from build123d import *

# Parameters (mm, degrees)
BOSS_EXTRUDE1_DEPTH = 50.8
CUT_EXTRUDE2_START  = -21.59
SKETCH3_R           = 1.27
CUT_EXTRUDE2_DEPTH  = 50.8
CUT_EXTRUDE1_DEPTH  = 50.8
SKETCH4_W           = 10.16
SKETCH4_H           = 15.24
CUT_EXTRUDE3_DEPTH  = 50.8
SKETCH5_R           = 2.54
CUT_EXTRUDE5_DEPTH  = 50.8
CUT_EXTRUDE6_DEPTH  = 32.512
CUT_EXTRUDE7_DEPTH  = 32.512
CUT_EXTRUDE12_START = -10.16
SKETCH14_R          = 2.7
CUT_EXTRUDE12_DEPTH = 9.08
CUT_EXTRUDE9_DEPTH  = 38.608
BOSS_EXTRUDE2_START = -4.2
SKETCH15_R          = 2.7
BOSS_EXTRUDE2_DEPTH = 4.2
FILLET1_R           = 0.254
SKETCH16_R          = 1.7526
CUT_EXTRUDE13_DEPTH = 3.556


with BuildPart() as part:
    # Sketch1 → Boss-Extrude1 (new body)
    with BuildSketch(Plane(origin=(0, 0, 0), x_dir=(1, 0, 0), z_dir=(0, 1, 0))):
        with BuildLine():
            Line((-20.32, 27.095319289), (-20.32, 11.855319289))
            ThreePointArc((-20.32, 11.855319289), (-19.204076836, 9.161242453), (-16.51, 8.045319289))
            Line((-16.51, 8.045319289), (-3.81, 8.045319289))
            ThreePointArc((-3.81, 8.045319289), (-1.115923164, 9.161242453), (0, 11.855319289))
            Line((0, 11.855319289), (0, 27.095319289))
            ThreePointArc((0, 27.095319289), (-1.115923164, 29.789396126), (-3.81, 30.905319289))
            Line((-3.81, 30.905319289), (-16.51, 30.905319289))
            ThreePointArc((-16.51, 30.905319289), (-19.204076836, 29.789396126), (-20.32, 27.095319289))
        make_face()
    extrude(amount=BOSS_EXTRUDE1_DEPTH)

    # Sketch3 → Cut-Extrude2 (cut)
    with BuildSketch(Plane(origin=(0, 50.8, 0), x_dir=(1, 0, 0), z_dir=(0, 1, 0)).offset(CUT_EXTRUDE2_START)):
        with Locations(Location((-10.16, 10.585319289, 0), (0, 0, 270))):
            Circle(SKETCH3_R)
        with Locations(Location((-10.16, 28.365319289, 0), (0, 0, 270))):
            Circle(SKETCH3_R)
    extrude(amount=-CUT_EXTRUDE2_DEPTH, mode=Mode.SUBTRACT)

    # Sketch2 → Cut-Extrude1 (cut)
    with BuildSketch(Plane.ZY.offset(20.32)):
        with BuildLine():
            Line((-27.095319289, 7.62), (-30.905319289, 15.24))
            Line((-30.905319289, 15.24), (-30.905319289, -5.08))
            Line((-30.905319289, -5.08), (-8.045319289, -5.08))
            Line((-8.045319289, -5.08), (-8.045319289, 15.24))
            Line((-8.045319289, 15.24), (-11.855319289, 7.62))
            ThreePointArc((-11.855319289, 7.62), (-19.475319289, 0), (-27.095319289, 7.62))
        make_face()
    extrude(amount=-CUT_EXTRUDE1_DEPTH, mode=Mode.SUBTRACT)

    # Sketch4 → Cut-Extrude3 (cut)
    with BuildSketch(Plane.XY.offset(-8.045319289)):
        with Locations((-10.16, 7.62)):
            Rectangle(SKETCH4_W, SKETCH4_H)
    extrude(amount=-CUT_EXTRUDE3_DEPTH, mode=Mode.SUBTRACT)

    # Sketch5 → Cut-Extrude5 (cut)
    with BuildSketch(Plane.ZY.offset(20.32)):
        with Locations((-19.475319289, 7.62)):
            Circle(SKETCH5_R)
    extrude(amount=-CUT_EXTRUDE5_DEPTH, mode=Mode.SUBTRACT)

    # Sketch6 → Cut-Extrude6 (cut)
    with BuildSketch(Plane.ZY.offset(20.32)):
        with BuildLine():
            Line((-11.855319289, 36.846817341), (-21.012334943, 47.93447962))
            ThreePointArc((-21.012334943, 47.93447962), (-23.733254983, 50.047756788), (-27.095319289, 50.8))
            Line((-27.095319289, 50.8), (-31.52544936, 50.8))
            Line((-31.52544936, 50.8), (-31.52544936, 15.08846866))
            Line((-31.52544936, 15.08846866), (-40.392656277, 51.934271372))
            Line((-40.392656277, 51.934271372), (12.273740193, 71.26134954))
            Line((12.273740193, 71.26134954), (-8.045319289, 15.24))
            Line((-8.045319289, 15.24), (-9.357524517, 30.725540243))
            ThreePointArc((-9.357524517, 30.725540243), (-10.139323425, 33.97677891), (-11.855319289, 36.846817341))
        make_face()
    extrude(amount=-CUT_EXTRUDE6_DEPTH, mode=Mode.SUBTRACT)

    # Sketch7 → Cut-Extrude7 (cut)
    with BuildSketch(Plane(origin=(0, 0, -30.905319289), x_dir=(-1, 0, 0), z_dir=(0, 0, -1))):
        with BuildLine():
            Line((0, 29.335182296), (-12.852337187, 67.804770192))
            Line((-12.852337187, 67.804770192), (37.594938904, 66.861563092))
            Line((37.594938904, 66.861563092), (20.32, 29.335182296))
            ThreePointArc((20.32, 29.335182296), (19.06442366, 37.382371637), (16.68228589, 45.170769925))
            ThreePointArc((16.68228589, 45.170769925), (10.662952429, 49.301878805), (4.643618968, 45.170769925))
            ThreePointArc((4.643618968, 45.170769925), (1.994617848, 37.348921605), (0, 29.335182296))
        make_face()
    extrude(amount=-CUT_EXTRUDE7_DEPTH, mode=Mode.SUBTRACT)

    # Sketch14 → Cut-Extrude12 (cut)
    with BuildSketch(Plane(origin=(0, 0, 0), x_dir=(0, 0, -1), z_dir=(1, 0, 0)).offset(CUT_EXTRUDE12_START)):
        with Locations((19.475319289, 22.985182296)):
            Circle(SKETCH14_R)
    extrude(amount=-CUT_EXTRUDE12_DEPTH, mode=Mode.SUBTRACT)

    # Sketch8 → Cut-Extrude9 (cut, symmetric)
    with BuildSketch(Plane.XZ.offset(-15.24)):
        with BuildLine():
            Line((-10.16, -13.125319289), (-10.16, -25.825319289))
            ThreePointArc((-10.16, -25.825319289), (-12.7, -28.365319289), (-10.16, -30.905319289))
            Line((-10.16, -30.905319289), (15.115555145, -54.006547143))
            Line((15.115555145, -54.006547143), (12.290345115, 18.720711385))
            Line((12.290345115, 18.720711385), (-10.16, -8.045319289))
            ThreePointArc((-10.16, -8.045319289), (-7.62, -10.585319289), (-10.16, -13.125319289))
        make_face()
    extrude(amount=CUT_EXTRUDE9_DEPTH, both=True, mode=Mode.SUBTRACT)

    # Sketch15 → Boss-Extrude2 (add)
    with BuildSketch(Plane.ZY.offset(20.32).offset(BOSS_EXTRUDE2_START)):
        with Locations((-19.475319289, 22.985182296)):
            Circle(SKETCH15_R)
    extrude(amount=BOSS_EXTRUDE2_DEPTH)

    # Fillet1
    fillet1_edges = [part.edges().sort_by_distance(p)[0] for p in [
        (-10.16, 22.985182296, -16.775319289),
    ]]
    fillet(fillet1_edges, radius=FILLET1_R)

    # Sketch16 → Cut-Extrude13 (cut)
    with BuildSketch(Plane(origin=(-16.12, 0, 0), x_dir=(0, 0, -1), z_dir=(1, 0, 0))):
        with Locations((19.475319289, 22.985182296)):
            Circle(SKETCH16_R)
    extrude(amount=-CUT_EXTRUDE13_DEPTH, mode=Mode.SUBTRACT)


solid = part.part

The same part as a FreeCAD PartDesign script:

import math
import FreeCAD as App
import Part
import Sketcher
Q = App.Units.Quantity


def edges_at(feature, points):
    """Names of the edges that pass closest to the given points."""
    edges = feature.Shape.Edges
    near = lambda p: min(range(len(edges)), key=lambda i: edges[i].distToShape(Part.Vertex(*p))[0])
    return sorted({f"Edge{near(p) + 1}" for p in points})


def add_polygon(sketch, points):
    """Adds a closed chain of lines whose ends are joined by coincident constraints."""
    first, n = sketch.GeometryCount, len(points)
    for a, b in zip(points, points[1:] + points[:1]):
        sketch.addGeometry(Part.LineSegment(App.Vector(*a, 0), App.Vector(*b, 0)), False)
    for i in range(n):
        sketch.addConstraint(Sketcher.Constraint("Coincident", first + i, 2, first + (i + 1) % n, 1))

doc = App.newDocument("Part")
body = doc.addObject("PartDesign::Body", "Body")

# Sketch on XZ plane
sketch1 = body.newObject("Sketcher::SketchObject", "Sketch")
sketch1.AttachmentSupport = (doc.getObject("XZ_Plane"), [""])
sketch1.MapMode = "FlatFace"
sketch1.addGeometry([
    Part.LineSegment(App.Vector(-20.3, -27.1, 0), App.Vector(-20.3, -11.9, 0)),  # 0
    Part.ArcOfCircle(Part.Circle(App.Vector(-16.5, -11.9, 0), App.Vector(0, 0, 1), 3.8), math.radians(90), math.radians(180)),  # 1
    Part.LineSegment(App.Vector(-16.5, -8, 0), App.Vector(-3.8, -8, 0)),  # 2
    Part.ArcOfCircle(Part.Circle(App.Vector(-3.8, -11.9, 0), App.Vector(0, 0, 1), 3.8), math.radians(0), math.radians(90)),  # 3
    Part.LineSegment(App.Vector(0, -11.9, 0), App.Vector(0, -27.1, 0)),  # 4
    Part.ArcOfCircle(Part.Circle(App.Vector(-3.8, -27.1, 0), App.Vector(0, 0, 1), 3.8), math.radians(-90), math.radians(0)),  # 5
    Part.LineSegment(App.Vector(-3.8, -30.9, 0), App.Vector(-16.5, -30.9, 0)),  # 6
    Part.ArcOfCircle(Part.Circle(App.Vector(-16.5, -27.1, 0), App.Vector(0, 0, 1), 3.8), math.radians(180), math.radians(270)),  # 7
], False)
sketch1.addConstraint([
    Sketcher.Constraint("Tangent", 0, 2, 1, 2),
    Sketcher.Constraint("Tangent", 1, 1, 2, 1),
    Sketcher.Constraint("Tangent", 2, 2, 3, 2),
    Sketcher.Constraint("Tangent", 3, 1, 4, 1),
    Sketcher.Constraint("Tangent", 4, 2, 5, 2),
    Sketcher.Constraint("Tangent", 5, 1, 6, 1),
    Sketcher.Constraint("Tangent", 6, 2, 7, 2),
    Sketcher.Constraint("Tangent", 7, 1, 0, 1),
    Sketcher.Constraint("Vertical", 0),
    Sketcher.Constraint("Horizontal", 2),
    Sketcher.Constraint("Vertical", 4),
    Sketcher.Constraint("Horizontal", 6),
    Sketcher.Constraint("Equal", 1, 3),
    Sketcher.Constraint("Equal", 3, 5),
    Sketcher.Constraint("Equal", 5, 7),
    Sketcher.Constraint("PointOnObject", 3, 1, -2),
    Sketcher.Constraint("Radius", 1, Q("0.15 in")),
    Sketcher.Constraint("DistanceX", 2, 1, 2, 2, Q("0.5 in")),
    Sketcher.Constraint("DistanceY", 0, 1, 0, 2, Q("0.6 in")),
    Sketcher.Constraint("DistanceY", 1, 3, -1, 1, 11.855319),
])
pad1 = body.newObject("PartDesign::Pad", "Pad")
pad1.Profile = sketch1
pad1.Length = Q("2 in")
pad1.Reversed = True

# Sketch on XZ plane
sketch2 = body.newObject("Sketcher::SketchObject", "Sketch001")
sketch2.AttachmentSupport = (doc.getObject("XZ_Plane"), [""])
sketch2.MapMode = "FlatFace"
sketch2.AttachmentOffset = App.Placement(App.Vector(0, 0, -1.15 * 25.4), App.Rotation())
sketch2.addGeometry([
    Part.Circle(App.Vector(-10.2, -10.6, 0), App.Vector(0, 0, 1), 1.3),
    Part.Circle(App.Vector(-10.2, -28.4, 0), App.Vector(0, 0, 1), 1.3),
], False)
sketch2.addConstraint([
    Sketcher.Constraint("Equal", 0, 1),
    Sketcher.Constraint("Vertical", 0, 3, 1, 3),
    Sketcher.Constraint("Diameter", 0, Q("0.1 in")),
    Sketcher.Constraint("DistanceX", 0, 3, -1, 1, Q("0.4 in")),
    Sketcher.Constraint("DistanceY", 1, 3, 0, 3, Q("0.7 in")),
    Sketcher.Constraint("DistanceY", 0, 3, -1, 1, 10.585319),
])
pocket1 = body.newObject("PartDesign::Pocket", "Pocket")
pocket1.Profile = sketch2
pocket1.Length = Q("2 in")
pocket1.Reversed = True

# Sketch on YZ plane
sketch3 = body.newObject("Sketcher::SketchObject", "Sketch002")
sketch3.AttachmentSupport = (doc.getObject("YZ_Plane"), [""])
sketch3.MapMode = "FlatFace"
sketch3.AttachmentOffset = App.Placement(App.Vector(0, 0, -0.8 * 25.4), App.Rotation())
sketch3.addGeometry([
    Part.LineSegment(App.Vector(8, -27, 0), App.Vector(15, -31, 0)),  # 0
    Part.LineSegment(App.Vector(15, -31, 0), App.Vector(-5, -31, 0)),  # 1
    Part.LineSegment(App.Vector(-5, -31, 0), App.Vector(-5, -8, 0)),  # 2
    Part.LineSegment(App.Vector(-5, -8, 0), App.Vector(15, -8, 0)),  # 3
    Part.LineSegment(App.Vector(15, -8, 0), App.Vector(8, -12, 0)),  # 4
    Part.ArcOfCircle(Part.Circle(App.Vector(8, -19, 0), App.Vector(0, 0, 1), 8), math.radians(90), math.radians(270)),  # 5
], False)
sketch3.addConstraint([
    Sketcher.Constraint("Coincident", 0, 2, 1, 1),
    Sketcher.Constraint("Coincident", 1, 2, 2, 1),
    Sketcher.Constraint("Coincident", 2, 2, 3, 1),
    Sketcher.Constraint("Coincident", 3, 2, 4, 1),
    Sketcher.Constraint("Coincident", 4, 2, 5, 1),
    Sketcher.Constraint("Coincident", 5, 2, 0, 1),
    Sketcher.Constraint("Horizontal", 1),
    Sketcher.Constraint("Vertical", 2),
    Sketcher.Constraint("Horizontal", 3),
    Sketcher.Constraint("Vertical", 0, 2, 3, 2),
    Sketcher.Constraint("Vertical", 5, 3, 4, 2),
    Sketcher.Constraint("Vertical", 4, 2, 5, 2),
    Sketcher.Constraint("Equal", 0, 4),
    Sketcher.Constraint("Radius", 5, Q("0.3 in")),
    Sketcher.Constraint("DistanceX", 1, 2, 1, 1, Q("0.8 in")),
    Sketcher.Constraint("DistanceY", 2, 1, 2, 2, Q("0.9 in")),
    Sketcher.Constraint("DistanceX", -1, 1, 5, 3, Q("0.3 in")),
    Sketcher.Constraint("DistanceX", -1, 1, 0, 2, Q("0.6 in")),
    Sketcher.Constraint("DistanceY", 5, 3, -1, 1, 19.475319),
])
pocket2 = body.newObject("PartDesign::Pocket", "Pocket001")
pocket2.Profile = sketch3
pocket2.Length = Q("2 in")
pocket2.Reversed = True

# Sketch on XY plane
sketch4 = body.newObject("Sketcher::SketchObject", "Sketch003")
sketch4.AttachmentSupport = (doc.getObject("XY_Plane"), [""])
sketch4.MapMode = "FlatFace"
sketch4.AttachmentOffset = App.Placement(App.Vector(0, 0, -8.045319), App.Rotation())
add_polygon(sketch4, [(-15, 15), (-15, 0), (-5, 0), (-5, 15)])  # lines 0-3
sketch4.addConstraint([
    Sketcher.Constraint("Vertical", 0),
    Sketcher.Constraint("Horizontal", 1),
    Sketcher.Constraint("Vertical", 2),
    Sketcher.Constraint("Horizontal", 3),
    Sketcher.Constraint("PointOnObject", 0, 2, -1),
    Sketcher.Constraint("DistanceX", 1, 1, 1, 2, Q("0.4 in")),
    Sketcher.Constraint("DistanceY", 0, 2, 0, 1, Q("0.6 in")),
    Sketcher.Constraint("DistanceX", 0, 2, -1, 1, Q("0.6 in")),
])
pocket3 = body.newObject("PartDesign::Pocket", "Pocket002")
pocket3.Profile = sketch4
pocket3.Length = Q("2 in")

# Sketch on YZ plane
sketch5 = body.newObject("Sketcher::SketchObject", "Sketch004")
sketch5.AttachmentSupport = (doc.getObject("YZ_Plane"), [""])
sketch5.MapMode = "FlatFace"
sketch5.AttachmentOffset = App.Placement(App.Vector(0, 0, -0.8 * 25.4), App.Rotation())
sketch5.addGeometry(Part.Circle(App.Vector(7.6, -19.5, 0), App.Vector(0, 0, 1), 2.5), False)
sketch5.addConstraint([
    Sketcher.Constraint("Diameter", 0, Q("0.2 in")),
    Sketcher.Constraint("DistanceX", -1, 1, 0, 3, Q("0.3 in")),
    Sketcher.Constraint("DistanceY", 0, 3, -1, 1, 19.475319),
])
pocket4 = body.newObject("PartDesign::Pocket", "Pocket003")
pocket4.Profile = sketch5
pocket4.Length = Q("2 in")
pocket4.Reversed = True

# Sketch on YZ plane
sketch6 = body.newObject("Sketcher::SketchObject", "Sketch005")
sketch6.AttachmentSupport = (doc.getObject("YZ_Plane"), [""])
sketch6.MapMode = "FlatFace"
sketch6.AttachmentOffset = App.Placement(App.Vector(0, 0, -0.8 * 25.4), App.Rotation())
sketch6.addGeometry([
    Part.LineSegment(App.Vector(47.9, -21, 0), App.Vector(36.8, -11.9, 0)),  # 0
    Part.ArcOfCircle(Part.Circle(App.Vector(29.8, -20.4, 0), App.Vector(0, 0, 1), 11.1), math.radians(50), math.radians(85)),  # 1
    Part.LineSegment(App.Vector(30.7, -9.4, 0), App.Vector(15.2, -8, 0)),  # 2
    Part.LineSegment(App.Vector(15.2, -8, 0), App.Vector(71.3, 12.3, 0)),  # 3
    Part.LineSegment(App.Vector(71.3, 12.3, 0), App.Vector(51.9, -40.4, 0)),  # 4
    Part.LineSegment(App.Vector(51.9, -40.4, 0), App.Vector(15.1, -31.5, 0)),  # 5
    Part.LineSegment(App.Vector(15.1, -31.5, 0), App.Vector(50.8, -31.5, 0)),  # 6
    Part.LineSegment(App.Vector(50.8, -31.5, 0), App.Vector(50.8, -27.1, 0)),  # 7
    Part.ArcOfCircle(Part.Circle(App.Vector(42.9, -27.1, 0), App.Vector(0, 0, 1), 7.9), math.radians(0), math.radians(50)),  # 8
], False)
sketch6.addConstraint([
    Sketcher.Constraint("Tangent", 0, 2, 1, 1),
    Sketcher.Constraint("Tangent", 1, 2, 2, 1),
    Sketcher.Constraint("Coincident", 2, 2, 3, 1),
    Sketcher.Constraint("Coincident", 3, 2, 4, 1),
    Sketcher.Constraint("Coincident", 4, 2, 5, 1),
    Sketcher.Constraint("Coincident", 5, 2, 6, 1),
    Sketcher.Constraint("Coincident", 6, 2, 7, 1),
    Sketcher.Constraint("Tangent", 7, 2, 8, 1),
    Sketcher.Constraint("Tangent", 8, 2, 0, 1),
    Sketcher.Constraint("Horizontal", 6),
    Sketcher.Constraint("Vertical", 7),
    Sketcher.Constraint("DistanceX", -1, 1, 6, 2, Q("2 in")),
    Sketcher.Constraint("DistanceX", -1, 1, 2, 2, Q("0.6 in")),
    Sketcher.Constraint("DistanceY", 8, 3, 0, 2, Q("0.6 in")),
    Sketcher.Constraint("Radius", 8, 7.889301),
    Sketcher.Constraint("DistanceY", 0, 2, 2, 2, Q("0.15 in")),
    Sketcher.Constraint("Radius", 1, 11.082261),
    Sketcher.Constraint("DistanceX", 6, 1, 6, 2, 35.711531),
    Sketcher.Constraint("DistanceY", 7, 1, 7, 2, 4.43013),
    Sketcher.Constraint("Distance", 4, 56.100671),
    Sketcher.Constraint("DistanceX", -1, 1, 1, 3, 29.789811),
    Sketcher.Constraint("DistanceY", 1, 3, -1, 1, 20.40021),
    Sketcher.Constraint("DistanceX", -1, 1, 3, 2, 71.26135),
    Sketcher.Constraint("DistanceY", -1, 1, 3, 2, 12.27374),
    Sketcher.Constraint("DistanceX", -1, 1, 4, 2, 51.934271),
])
pocket5 = body.newObject("PartDesign::Pocket", "Pocket004")
pocket5.Profile = sketch6
pocket5.Length = Q("1.28 in")
pocket5.Reversed = True

# Sketch on XY plane
sketch7 = body.newObject("Sketcher::SketchObject", "Sketch006")
sketch7.AttachmentSupport = (doc.getObject("XY_Plane"), [""])
sketch7.MapMode = "FlatFace"
sketch7.AttachmentOffset = App.Placement(App.Vector(0, 0, -30.905319), App.Rotation())
sketch7.addGeometry([
    Part.LineSegment(App.Vector(13, 68, 0), App.Vector(0, 29, 0)),  # 0
    Part.ArcOfCircle(Part.Circle(App.Vector(-98, 9, 0), App.Vector(0, 0, 1), 100), math.radians(11.61), math.radians(21.08)),  # 1
    Part.ArcOfCircle(Part.Circle(App.Vector(-11, 43, 0), App.Vector(0, 0, 1), 6), math.radians(21), math.radians(159)),  # 2
    Part.ArcOfCircle(Part.Circle(App.Vector(37, 25, 0), App.Vector(0, 0, 1), 57), math.radians(158.92), math.radians(175.2)),  # 3
    Part.LineSegment(App.Vector(-20, 29, 0), App.Vector(-38, 67, 0)),  # 4
    Part.LineSegment(App.Vector(-38, 67, 0), App.Vector(13, 68, 0)),  # 5
], False)
sketch7.addConstraint([
    Sketcher.Constraint("Coincident", 0, 2, 1, 1),
    Sketcher.Constraint("Tangent", 1, 2, 2, 1),
    Sketcher.Constraint("Tangent", 2, 2, 3, 1),
    Sketcher.Constraint("Coincident", 3, 2, 4, 1),
    Sketcher.Constraint("Coincident", 4, 2, 5, 1),
    Sketcher.Constraint("Coincident", 5, 2, 0, 1),
    Sketcher.Constraint("PointOnObject", 0, 2, -2),
    Sketcher.Constraint("Horizontal", 0, 2, 3, 2),
    Sketcher.Constraint("DistanceX", 3, 2, -1, 1, Q("0.8 in")),
    Sketcher.Constraint("Radius", 1, 100.006899),
    Sketcher.Constraint("Radius", 2, 6.450863),
    Sketcher.Constraint("Radius", 3, 57.386896),
    Sketcher.Constraint("DistanceY", 1, 2, 5, 2, 22.634),
    Sketcher.Constraint("DistanceY", 2, 2, 5, 2, 22.634),
    Sketcher.Constraint("Distance", 0, 40.559731),
    Sketcher.Constraint("DistanceX", 1, 3, -1, 1, 97.960569),
    Sketcher.Constraint("DistanceY", -1, 1, 1, 3, 9.207919),
    Sketcher.Constraint("DistanceX", 4, 2, -1, 1, 37.594939),
    Sketcher.Constraint("DistanceY", 3, 2, 4, 2, 37.526381),
])
pocket6 = body.newObject("PartDesign::Pocket", "Pocket005")
pocket6.Profile = sketch7
pocket6.Length = Q("1.28 in")
pocket6.Reversed = True

# Sketch on YZ plane
sketch8 = body.newObject("Sketcher::SketchObject", "Sketch007")
sketch8.AttachmentSupport = (doc.getObject("YZ_Plane"), [""])
sketch8.MapMode = "FlatFace"
sketch8.AttachmentOffset = App.Placement(App.Vector(0, 0, -0.4 * 25.4), App.Rotation())
sketch8.addGeometry(Part.Circle(App.Vector(23, -19.5, 0), App.Vector(0, 0, 1), 2.7), False)
sketch8.addConstraint([
    Sketcher.Constraint("Diameter", 0, 5.4),
    Sketcher.Constraint("DistanceY", 0, 3, -1, 1, 19.475319),
    Sketcher.Constraint("DistanceX", -1, 1, 0, 3, 22.985182),
])
pocket7 = body.newObject("PartDesign::Pocket", "Pocket006")
pocket7.Profile = sketch8
pocket7.Length = 9.08

# Sketch on XZ plane
sketch9 = body.newObject("Sketcher::SketchObject", "Sketch008")
sketch9.AttachmentSupport = (doc.getObject("XZ_Plane"), [""])
sketch9.MapMode = "FlatFace"
sketch9.AttachmentOffset = App.Placement(App.Vector(0, 0, -0.6 * 25.4), App.Rotation())
sketch9.addGeometry([
    Part.LineSegment(App.Vector(-10.2, -13.1, 0), App.Vector(-10.2, -25.8, 0)),  # 0
    Part.ArcOfCircle(Part.Circle(App.Vector(-10.2, -28.4, 0), App.Vector(0, 0, 1), 2.5), math.radians(90), math.radians(270)),  # 1
    Part.LineSegment(App.Vector(-10.2, -30.9, 0), App.Vector(15.1, -54, 0)),  # 2
    Part.LineSegment(App.Vector(15.1, -54, 0), App.Vector(12.3, 18.7, 0)),  # 3
    Part.LineSegment(App.Vector(12.3, 18.7, 0), App.Vector(-10.2, -8, 0)),  # 4
    Part.ArcOfCircle(Part.Circle(App.Vector(-10.2, -10.6, 0), App.Vector(0, 0, 1), 2.5), math.radians(-90), math.radians(90)),  # 5
], False)
sketch9.addConstraint([
    Sketcher.Constraint("Coincident", 0, 2, 1, 1),
    Sketcher.Constraint("Coincident", 1, 2, 2, 1),
    Sketcher.Constraint("Coincident", 2, 2, 3, 1),
    Sketcher.Constraint("Coincident", 3, 2, 4, 1),
    Sketcher.Constraint("Coincident", 4, 2, 5, 2),
    Sketcher.Constraint("Coincident", 5, 1, 0, 1),
    Sketcher.Constraint("Vertical", 0),
    Sketcher.Constraint("Equal", 1, 5),
    Sketcher.Constraint("Vertical", 1, 3, 5, 3),
    Sketcher.Constraint("Vertical", 5, 3, 0, 2),
    Sketcher.Constraint("Vertical", 0, 2, 1, 2),
    Sketcher.Constraint("Vertical", 1, 2, 4, 2),
    Sketcher.Constraint("Radius", 1, Q("0.1 in")),
    Sketcher.Constraint("DistanceY", 0, 2, 0, 1, Q("0.5 in")),
    Sketcher.Constraint("DistanceX", 1, 3, -1, 1, Q("0.4 in")),
    Sketcher.Constraint("DistanceY", 1, 3, -1, 1, 28.365319),
    Sketcher.Constraint("DistanceY", -1, 1, 3, 2, 18.720711),
    Sketcher.Constraint("DistanceX", 3, 2, 2, 2, 2.82521),
    Sketcher.Constraint("DistanceY", 2, 2, 3, 2, 72.727259),
    Sketcher.Constraint("Distance", 2, 34.242085),
])
pocket8 = body.newObject("PartDesign::Pocket", "Pocket007")
pocket8.Profile = sketch9
pocket8.Length = Q("3.04 in")
pocket8.Midplane = True

# Sketch on YZ plane
sketch10 = body.newObject("Sketcher::SketchObject", "Sketch009")
sketch10.AttachmentSupport = (doc.getObject("YZ_Plane"), [""])
sketch10.MapMode = "FlatFace"
sketch10.AttachmentOffset = App.Placement(App.Vector(0, 0, -16.12), App.Rotation())
sketch10.addGeometry(Part.Circle(App.Vector(23, -19.5, 0), App.Vector(0, 0, 1), 2.7), False)
sketch10.addConstraint([
    Sketcher.Constraint("Diameter", 0, 5.4),
    Sketcher.Constraint("DistanceY", 0, 3, -1, 1, 19.475319),
    Sketcher.Constraint("DistanceX", -1, 1, 0, 3, 22.985182),
])
pad2 = body.newObject("PartDesign::Pad", "Pad001")
pad2.Profile = sketch10
pad2.Length = 4.2
pad2.Reversed = True
doc.recompute()

fillet = body.newObject("PartDesign::Fillet", "Fillet")
fillet.Base = (pad2, edges_at(pad2, [(-10.16, 22.985, -16.775)]))
fillet.Radius = Q("0.01 in")

# Sketch on YZ plane
sketch11 = body.newObject("Sketcher::SketchObject", "Sketch010")
sketch11.AttachmentSupport = (doc.getObject("YZ_Plane"), [""])
sketch11.MapMode = "FlatFace"
sketch11.AttachmentOffset = App.Placement(App.Vector(0, 0, -16.12), App.Rotation())
sketch11.addGeometry(Part.Circle(App.Vector(23, -19.5, 0), App.Vector(0, 0, 1), 1.8), False)
sketch11.addConstraint([
    Sketcher.Constraint("Diameter", 0, Q("0.138 in")),
    Sketcher.Constraint("DistanceY", 0, 3, -1, 1, 19.475319),
    Sketcher.Constraint("DistanceX", -1, 1, 0, 3, 22.985182),
])
pocket9 = body.newObject("PartDesign::Pocket", "Pocket008")
pocket9.Profile = sketch11
pocket9.Length = Q("0.14 in")

doc.recompute()
